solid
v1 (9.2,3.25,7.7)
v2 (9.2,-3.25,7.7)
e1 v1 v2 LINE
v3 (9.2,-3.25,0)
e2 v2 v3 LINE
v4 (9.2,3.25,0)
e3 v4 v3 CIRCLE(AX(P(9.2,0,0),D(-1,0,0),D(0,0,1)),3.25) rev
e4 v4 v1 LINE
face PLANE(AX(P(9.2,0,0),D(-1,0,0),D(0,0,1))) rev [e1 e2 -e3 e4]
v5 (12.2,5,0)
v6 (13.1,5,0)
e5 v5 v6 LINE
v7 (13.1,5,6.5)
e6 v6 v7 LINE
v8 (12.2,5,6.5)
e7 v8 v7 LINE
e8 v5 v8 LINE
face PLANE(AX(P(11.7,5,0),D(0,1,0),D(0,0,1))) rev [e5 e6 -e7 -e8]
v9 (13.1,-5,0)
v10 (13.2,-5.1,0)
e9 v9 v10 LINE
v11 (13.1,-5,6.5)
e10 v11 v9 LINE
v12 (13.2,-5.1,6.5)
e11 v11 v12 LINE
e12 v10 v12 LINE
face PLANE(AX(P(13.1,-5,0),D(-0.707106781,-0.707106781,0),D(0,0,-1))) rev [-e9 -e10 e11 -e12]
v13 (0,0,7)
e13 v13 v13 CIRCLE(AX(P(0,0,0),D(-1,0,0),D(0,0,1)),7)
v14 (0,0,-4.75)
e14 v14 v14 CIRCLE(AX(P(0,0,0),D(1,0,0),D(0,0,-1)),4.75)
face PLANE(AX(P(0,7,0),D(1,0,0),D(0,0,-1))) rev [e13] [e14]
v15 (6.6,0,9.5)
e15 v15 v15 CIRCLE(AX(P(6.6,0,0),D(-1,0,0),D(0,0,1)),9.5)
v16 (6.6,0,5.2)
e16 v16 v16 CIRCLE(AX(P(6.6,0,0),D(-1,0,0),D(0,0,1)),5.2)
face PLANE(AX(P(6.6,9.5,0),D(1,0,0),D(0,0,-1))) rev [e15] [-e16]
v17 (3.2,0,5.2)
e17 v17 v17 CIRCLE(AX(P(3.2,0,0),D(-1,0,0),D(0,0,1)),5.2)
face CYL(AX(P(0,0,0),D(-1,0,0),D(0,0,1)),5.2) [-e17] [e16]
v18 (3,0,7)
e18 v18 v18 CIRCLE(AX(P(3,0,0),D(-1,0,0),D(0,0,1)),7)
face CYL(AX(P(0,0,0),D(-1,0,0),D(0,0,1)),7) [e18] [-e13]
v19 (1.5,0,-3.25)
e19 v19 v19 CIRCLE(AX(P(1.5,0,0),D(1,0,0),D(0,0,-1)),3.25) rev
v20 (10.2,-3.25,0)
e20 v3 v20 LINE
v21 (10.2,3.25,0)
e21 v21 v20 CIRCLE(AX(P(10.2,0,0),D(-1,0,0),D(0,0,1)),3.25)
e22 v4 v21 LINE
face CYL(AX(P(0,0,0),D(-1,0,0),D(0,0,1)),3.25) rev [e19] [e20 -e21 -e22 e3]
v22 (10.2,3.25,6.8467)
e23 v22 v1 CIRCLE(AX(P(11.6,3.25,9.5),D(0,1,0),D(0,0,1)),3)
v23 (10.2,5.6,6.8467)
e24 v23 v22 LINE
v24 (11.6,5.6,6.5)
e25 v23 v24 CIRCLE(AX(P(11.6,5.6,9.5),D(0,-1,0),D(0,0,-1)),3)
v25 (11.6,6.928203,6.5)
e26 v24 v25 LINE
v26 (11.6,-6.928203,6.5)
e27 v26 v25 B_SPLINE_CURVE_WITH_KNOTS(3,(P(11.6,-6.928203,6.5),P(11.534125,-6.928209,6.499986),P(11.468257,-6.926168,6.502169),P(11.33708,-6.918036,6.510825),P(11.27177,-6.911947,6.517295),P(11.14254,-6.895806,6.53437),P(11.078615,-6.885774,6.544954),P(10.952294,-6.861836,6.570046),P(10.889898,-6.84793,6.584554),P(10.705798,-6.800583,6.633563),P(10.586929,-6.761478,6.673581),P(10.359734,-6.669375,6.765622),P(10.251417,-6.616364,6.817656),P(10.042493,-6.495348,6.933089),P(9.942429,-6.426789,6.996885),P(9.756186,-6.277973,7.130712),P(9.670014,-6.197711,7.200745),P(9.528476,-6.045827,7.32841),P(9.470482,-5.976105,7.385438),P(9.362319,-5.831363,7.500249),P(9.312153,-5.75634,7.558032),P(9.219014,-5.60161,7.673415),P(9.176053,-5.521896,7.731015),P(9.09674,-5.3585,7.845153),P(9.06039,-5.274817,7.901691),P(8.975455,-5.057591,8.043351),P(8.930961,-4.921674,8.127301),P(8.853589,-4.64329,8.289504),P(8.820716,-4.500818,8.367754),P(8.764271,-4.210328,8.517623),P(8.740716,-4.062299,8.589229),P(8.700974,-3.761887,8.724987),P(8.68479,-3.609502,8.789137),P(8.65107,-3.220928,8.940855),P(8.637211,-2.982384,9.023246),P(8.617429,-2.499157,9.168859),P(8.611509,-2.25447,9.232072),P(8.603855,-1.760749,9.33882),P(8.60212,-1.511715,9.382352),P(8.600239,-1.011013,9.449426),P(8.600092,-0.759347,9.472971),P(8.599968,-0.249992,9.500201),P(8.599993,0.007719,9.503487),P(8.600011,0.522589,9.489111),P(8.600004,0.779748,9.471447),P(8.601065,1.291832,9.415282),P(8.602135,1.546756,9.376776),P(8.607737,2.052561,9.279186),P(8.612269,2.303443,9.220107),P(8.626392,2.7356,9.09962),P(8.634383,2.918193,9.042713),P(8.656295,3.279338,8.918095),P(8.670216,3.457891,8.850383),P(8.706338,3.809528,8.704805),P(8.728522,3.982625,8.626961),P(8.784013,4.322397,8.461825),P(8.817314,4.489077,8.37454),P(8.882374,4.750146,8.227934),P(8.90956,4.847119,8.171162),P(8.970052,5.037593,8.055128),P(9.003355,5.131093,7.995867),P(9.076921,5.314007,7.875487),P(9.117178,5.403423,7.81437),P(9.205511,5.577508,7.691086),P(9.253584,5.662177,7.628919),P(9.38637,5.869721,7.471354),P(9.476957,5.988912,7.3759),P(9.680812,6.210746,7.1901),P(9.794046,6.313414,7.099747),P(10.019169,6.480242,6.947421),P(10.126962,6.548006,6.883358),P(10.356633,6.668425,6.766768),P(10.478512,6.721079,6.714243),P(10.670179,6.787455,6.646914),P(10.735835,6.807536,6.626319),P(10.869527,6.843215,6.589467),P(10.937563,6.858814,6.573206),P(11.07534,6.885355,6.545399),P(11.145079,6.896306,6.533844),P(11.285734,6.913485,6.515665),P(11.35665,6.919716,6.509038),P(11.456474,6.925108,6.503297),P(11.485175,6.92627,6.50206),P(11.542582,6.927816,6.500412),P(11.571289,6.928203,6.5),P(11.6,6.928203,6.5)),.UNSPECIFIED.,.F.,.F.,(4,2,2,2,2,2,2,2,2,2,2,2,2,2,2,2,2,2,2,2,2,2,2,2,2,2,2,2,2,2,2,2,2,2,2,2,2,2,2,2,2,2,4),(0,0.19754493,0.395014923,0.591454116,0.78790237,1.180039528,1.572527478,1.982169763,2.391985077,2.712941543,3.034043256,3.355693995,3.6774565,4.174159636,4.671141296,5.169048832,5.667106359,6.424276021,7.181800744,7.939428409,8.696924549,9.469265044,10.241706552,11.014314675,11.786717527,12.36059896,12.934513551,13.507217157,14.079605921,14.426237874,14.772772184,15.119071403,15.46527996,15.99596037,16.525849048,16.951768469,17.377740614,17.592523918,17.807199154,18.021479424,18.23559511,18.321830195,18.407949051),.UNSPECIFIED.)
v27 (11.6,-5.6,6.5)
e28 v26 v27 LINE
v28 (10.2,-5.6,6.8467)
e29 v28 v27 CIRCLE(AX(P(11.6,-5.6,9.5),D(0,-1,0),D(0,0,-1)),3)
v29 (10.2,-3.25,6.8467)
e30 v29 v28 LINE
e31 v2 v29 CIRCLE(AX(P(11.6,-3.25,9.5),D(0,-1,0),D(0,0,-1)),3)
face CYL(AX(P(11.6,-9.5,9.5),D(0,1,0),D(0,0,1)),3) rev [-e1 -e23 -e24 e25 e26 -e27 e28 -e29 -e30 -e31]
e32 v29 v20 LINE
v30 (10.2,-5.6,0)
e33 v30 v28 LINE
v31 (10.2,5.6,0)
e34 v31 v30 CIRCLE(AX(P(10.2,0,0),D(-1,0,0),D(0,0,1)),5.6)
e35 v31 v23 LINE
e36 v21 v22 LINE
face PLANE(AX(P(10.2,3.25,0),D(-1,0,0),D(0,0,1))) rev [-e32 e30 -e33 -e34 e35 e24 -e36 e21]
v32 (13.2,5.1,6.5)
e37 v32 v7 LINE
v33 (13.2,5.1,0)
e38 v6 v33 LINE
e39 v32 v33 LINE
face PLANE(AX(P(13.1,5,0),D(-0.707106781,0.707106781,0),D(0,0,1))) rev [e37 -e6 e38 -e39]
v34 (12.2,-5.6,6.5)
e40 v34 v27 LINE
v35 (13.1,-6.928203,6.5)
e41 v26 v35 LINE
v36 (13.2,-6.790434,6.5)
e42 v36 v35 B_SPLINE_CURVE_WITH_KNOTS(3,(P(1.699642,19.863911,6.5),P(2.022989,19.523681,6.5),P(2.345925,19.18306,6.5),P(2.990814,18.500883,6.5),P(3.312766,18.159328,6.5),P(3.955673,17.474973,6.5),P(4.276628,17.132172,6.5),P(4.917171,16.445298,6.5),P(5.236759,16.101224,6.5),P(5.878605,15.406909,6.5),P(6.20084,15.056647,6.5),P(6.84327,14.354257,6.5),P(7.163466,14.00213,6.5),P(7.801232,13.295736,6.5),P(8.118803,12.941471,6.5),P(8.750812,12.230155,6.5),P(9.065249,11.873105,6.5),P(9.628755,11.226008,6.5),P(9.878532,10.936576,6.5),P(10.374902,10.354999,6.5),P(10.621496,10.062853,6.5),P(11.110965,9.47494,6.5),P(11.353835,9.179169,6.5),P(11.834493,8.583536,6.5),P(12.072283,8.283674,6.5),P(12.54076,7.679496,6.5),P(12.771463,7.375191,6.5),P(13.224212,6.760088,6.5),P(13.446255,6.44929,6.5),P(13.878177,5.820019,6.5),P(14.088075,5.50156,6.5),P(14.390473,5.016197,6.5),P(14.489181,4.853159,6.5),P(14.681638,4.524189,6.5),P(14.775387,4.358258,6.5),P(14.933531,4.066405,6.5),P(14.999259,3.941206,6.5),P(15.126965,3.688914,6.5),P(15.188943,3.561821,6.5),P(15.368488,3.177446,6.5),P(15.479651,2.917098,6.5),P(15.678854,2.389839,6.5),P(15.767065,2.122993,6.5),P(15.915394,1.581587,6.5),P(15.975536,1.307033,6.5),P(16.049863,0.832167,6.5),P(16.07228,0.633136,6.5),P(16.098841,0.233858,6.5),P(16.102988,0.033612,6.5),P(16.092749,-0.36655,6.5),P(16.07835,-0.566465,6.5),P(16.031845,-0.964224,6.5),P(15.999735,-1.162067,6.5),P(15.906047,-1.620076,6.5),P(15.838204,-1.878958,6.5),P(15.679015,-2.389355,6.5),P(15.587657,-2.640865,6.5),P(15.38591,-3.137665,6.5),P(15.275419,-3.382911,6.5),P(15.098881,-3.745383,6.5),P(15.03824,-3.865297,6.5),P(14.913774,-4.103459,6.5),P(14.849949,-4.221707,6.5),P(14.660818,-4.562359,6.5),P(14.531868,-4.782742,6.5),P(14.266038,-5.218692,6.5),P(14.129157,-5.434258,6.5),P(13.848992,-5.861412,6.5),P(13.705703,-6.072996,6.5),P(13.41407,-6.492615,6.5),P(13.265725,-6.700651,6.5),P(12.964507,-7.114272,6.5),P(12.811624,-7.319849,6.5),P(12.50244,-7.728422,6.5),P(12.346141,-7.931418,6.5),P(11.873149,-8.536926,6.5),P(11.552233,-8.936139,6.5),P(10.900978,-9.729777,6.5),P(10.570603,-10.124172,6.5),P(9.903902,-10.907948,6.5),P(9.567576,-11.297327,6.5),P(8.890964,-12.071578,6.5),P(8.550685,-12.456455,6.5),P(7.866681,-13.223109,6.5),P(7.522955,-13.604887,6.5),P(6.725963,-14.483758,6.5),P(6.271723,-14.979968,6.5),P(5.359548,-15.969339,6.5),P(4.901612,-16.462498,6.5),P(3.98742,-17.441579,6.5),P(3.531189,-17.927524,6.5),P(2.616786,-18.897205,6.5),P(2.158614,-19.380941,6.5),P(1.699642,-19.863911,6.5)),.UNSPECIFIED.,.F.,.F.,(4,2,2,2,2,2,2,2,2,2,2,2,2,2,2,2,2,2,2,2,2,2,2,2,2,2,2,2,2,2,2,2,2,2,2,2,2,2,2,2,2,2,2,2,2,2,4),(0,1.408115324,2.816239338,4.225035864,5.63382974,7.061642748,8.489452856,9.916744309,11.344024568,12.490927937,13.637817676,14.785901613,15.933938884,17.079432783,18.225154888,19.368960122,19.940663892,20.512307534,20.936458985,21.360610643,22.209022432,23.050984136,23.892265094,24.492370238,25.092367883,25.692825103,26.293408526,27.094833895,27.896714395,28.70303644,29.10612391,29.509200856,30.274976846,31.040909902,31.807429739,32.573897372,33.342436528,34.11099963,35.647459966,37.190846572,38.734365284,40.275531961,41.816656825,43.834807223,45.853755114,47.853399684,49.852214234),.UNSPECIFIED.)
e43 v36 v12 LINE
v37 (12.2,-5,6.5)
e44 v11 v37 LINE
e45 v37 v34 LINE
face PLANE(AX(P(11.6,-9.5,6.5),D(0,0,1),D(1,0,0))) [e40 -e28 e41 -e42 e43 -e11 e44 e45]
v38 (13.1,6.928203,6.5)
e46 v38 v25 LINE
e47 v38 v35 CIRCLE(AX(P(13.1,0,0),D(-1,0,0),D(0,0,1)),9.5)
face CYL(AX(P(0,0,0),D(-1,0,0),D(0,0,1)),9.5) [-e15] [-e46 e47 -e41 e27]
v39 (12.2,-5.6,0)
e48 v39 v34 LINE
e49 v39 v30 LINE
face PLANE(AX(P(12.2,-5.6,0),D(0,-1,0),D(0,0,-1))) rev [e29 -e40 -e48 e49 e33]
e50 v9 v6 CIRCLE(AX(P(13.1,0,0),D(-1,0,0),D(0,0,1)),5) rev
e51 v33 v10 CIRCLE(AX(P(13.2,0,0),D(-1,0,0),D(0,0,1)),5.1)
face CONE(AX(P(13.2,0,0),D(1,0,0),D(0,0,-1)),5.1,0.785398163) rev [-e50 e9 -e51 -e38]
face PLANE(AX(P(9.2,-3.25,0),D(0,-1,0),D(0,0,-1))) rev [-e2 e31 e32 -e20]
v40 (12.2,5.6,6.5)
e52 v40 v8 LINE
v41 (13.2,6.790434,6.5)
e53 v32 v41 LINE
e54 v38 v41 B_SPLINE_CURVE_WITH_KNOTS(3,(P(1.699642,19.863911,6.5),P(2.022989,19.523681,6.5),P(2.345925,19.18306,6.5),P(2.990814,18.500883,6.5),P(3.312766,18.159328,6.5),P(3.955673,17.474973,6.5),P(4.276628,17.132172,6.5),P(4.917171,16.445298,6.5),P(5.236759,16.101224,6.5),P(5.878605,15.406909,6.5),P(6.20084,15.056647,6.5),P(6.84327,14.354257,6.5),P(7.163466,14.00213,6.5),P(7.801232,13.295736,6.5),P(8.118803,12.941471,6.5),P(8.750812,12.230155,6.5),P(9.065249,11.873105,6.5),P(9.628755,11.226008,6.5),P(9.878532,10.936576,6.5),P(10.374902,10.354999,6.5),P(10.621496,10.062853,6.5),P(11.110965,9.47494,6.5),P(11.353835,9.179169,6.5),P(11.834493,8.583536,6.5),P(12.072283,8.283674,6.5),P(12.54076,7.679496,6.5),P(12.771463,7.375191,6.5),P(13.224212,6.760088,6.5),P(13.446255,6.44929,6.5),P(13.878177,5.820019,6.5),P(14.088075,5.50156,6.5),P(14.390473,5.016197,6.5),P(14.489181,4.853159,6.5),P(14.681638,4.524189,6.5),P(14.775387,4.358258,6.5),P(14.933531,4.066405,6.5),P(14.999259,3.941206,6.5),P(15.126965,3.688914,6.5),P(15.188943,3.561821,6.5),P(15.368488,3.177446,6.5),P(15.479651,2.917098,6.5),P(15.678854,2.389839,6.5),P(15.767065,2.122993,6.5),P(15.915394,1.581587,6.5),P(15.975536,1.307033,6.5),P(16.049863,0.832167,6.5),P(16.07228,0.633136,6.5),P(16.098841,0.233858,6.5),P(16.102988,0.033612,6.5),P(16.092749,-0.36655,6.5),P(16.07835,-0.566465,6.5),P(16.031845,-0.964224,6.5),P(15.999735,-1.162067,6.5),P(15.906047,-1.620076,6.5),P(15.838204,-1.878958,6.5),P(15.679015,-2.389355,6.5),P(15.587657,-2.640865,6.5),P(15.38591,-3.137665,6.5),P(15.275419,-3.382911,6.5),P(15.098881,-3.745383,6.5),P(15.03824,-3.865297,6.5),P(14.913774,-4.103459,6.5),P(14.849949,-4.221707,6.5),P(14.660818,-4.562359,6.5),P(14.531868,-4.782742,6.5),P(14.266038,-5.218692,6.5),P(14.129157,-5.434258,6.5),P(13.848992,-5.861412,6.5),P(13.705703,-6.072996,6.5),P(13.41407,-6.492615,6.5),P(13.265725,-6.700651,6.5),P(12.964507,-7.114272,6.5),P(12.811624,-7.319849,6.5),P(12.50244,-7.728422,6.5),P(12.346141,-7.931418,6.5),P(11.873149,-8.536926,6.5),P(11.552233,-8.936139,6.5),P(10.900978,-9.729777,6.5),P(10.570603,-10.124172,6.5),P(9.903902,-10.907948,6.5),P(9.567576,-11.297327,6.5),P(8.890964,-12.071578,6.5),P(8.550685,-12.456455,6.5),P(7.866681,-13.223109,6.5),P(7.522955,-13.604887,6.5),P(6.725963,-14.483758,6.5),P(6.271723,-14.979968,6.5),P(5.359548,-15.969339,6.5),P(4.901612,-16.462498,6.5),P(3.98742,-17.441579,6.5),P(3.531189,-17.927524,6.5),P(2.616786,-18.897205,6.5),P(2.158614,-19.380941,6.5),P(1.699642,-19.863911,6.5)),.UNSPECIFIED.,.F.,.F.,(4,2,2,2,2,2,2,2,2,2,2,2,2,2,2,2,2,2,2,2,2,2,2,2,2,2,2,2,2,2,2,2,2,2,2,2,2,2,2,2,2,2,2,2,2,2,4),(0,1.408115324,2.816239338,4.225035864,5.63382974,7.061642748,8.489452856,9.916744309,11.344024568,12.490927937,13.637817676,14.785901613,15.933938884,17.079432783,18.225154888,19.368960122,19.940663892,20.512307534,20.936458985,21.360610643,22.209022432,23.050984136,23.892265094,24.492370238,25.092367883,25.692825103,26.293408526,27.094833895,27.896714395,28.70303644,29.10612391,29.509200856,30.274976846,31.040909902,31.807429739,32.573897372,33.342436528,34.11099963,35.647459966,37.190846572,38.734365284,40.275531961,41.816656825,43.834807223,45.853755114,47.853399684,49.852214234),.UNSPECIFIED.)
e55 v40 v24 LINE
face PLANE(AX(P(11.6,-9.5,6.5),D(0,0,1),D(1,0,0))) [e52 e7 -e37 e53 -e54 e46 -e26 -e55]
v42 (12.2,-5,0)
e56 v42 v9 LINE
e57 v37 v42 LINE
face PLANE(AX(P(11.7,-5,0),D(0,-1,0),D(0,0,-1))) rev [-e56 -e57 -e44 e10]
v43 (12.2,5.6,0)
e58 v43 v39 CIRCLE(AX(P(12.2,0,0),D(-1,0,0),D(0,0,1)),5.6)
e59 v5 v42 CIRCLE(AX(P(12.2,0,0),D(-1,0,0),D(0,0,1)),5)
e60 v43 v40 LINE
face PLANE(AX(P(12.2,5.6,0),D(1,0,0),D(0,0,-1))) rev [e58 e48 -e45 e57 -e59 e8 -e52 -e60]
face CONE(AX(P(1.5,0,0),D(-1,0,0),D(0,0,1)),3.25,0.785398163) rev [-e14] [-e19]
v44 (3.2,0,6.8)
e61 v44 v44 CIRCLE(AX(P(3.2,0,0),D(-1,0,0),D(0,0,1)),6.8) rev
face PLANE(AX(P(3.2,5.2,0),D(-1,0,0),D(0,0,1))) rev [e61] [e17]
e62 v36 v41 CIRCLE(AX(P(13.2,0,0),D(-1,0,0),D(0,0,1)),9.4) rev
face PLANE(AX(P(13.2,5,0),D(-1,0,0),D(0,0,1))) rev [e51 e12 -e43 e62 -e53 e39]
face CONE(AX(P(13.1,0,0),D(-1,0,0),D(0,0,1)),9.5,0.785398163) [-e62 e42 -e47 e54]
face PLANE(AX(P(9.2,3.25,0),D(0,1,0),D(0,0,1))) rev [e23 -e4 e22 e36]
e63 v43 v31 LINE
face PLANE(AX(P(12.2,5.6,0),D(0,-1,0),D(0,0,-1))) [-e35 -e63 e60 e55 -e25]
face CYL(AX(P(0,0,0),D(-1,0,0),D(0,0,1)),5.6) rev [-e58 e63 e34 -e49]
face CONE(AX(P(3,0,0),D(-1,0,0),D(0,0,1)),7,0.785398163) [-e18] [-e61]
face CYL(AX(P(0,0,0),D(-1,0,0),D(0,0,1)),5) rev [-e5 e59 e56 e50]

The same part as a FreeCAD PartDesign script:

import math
import FreeCAD as App
import Part
import Sketcher

V = App.Vector
Q = App.Units.Quantity


def edges_at(feature, points):
    """Names of the edges that pass closest to the given points."""
    edges = feature.Shape.Edges
    near = lambda p: min(range(len(edges)), key=lambda i: edges[i].distToShape(Part.Vertex(*p))[0])
    return sorted({f"Edge{near(p) + 1}" for p in points})

doc = App.newDocument("Part")
body = doc.addObject("PartDesign::Body", "Body")

sketch1 = body.newObject("Sketcher::SketchObject", "Sketch")
sketch1.AttachmentSupport = (doc.getObject("XY_Plane"), [""])
sketch1.MapMode = "FlatFace"
sketch1.addGeometry([
    Part.LineSegment(V(0, 3.2, 0), V(10.2, 3.2, 0)),
    Part.LineSegment(V(10.2, 3.2, 0), V(10.2, 5.6, 0)),
    Part.LineSegment(V(10.2, 5.6, 0), V(12.2, 5.6, 0)),
    Part.LineSegment(V(12.2, 5.6, 0), V(12.2, 5, 0)),
    Part.LineSegment(V(12.2, 5, 0), V(13.2, 5, 0)),
    Part.LineSegment(V(13.2, 5, 0), V(13.2, 9.5, 0)),
    Part.LineSegment(V(13.2, 9.5, 0), V(6.6, 9.5, 0)),
    Part.LineSegment(V(6.6, 9.5, 0), V(6.6, 5.2, 0)),
    Part.LineSegment(V(6.6, 5.2, 0), V(3.2, 5.2, 0)),
    Part.LineSegment(V(3.2, 5.2, 0), V(3.2, 7, 0)),
    Part.LineSegment(V(3.2, 7, 0), V(0, 7, 0)),
    Part.LineSegment(V(0, 7, 0), V(0, 3.2, 0)),
], False)
sketch1.addConstraint([
    Sketcher.Constraint("Coincident", 0, 2, 1, 1),
    Sketcher.Constraint("Coincident", 1, 2, 2, 1),
    Sketcher.Constraint("Coincident", 2, 2, 3, 1),
    Sketcher.Constraint("Coincident", 3, 2, 4, 1),
    Sketcher.Constraint("Coincident", 4, 2, 5, 1),
    Sketcher.Constraint("Coincident", 5, 2, 6, 1),
    Sketcher.Constraint("Coincident", 6, 2, 7, 1),
    Sketcher.Constraint("Coincident", 7, 2, 8, 1),
    Sketcher.Constraint("Coincident", 8, 2, 9, 1),
    Sketcher.Constraint("Coincident", 9, 2, 10, 1),
    Sketcher.Constraint("Coincident", 10, 2, 11, 1),
    Sketcher.Constraint("Coincident", 11, 2, 0, 1),
    Sketcher.Constraint("Horizontal", 0),
    Sketcher.Constraint("Vertical", 1),
    Sketcher.Constraint("Horizontal", 2),
    Sketcher.Constraint("Vertical", 3),
    Sketcher.Constraint("Horizontal", 4),
    Sketcher.Constraint("Vertical", 5),
    Sketcher.Constraint("Horizontal", 6),
    Sketcher.Constraint("Vertical", 7),
    Sketcher.Constraint("Horizontal", 8),
    Sketcher.Constraint("Vertical", 9),
    Sketcher.Constraint("Horizontal", 10),
    Sketcher.Constraint("Vertical", 11),
    Sketcher.Constraint("PointOnObject", 10, 2, -2),
    Sketcher.Constraint("DistanceX", 2, 1, 2, 2, Q("2 mm")),
    Sketcher.Constraint("DistanceX", 4, 1, 4, 2, Q("1 mm")),
    Sketcher.Constraint("DistanceX", 0, 1, 0, 2, Q("10.2 mm")),
    Sketcher.Constraint("DistanceX", 6, 2, 6, 1, Q("6.6 mm")),
    Sketcher.Constraint("DistanceX", 8, 2, 8, 1, Q("3.4 mm")),
    Sketcher.Constraint("DistanceY", 3, 2, 3, 1, Q("0.6 mm")),
    Sketcher.Constraint("DistanceY", 5, 1, 5, 2, Q("4.5 mm")),
    Sketcher.Constraint("DistanceY", 7, 2, 7, 1, Q("4.3 mm")),
    Sketcher.Constraint("DistanceY", 9, 1, 9, 2, Q("1.8 mm")),
    Sketcher.Constraint("DistanceY", -1, 1, 3, 2, Q("5 mm")),
    Sketcher.Constraint("DistanceY", 1, 1, 1, 2, Q("2.35 mm")),
])
revolution = body.newObject("PartDesign::Revolution", "Revolution")
revolution.Profile = sketch1
revolution.ReferenceAxis = (sketch1, ["H_Axis"])
revolution.Angle = 360

sketch2 = body.newObject("Sketcher::SketchObject", "Sketch001")
sketch2.AttachmentSupport = (doc.getObject("YZ_Plane"), [""])
sketch2.MapMode = "FlatFace"
sketch2.AttachmentOffset = App.Placement(V(0, 0, 13.2), App.Rotation())
sketch2.addGeometry([
    Part.LineSegment(V(5, 10, 0), V(-5, 10, 0)),
    Part.LineSegment(V(-5, 10, 0), V(-5, 0, 0)),
    Part.LineSegment(V(-5, 0, 0), V(5, 0, 0)),
    Part.LineSegment(V(5, 0, 0), V(5, 10, 0)),
], False)
sketch2.addConstraint([
    Sketcher.Constraint("Coincident", 0, 2, 1, 1),
    Sketcher.Constraint("Coincident", 1, 2, 2, 1),
    Sketcher.Constraint("Coincident", 2, 2, 3, 1),
    Sketcher.Constraint("Coincident", 3, 2, 0, 1),
    Sketcher.Constraint("Horizontal", 0),
    Sketcher.Constraint("Vertical", 1),
    Sketcher.Constraint("Horizontal", 2),
    Sketcher.Constraint("Vertical", 3),
    Sketcher.Constraint("Symmetric", 1, 2, 2, 2, -1, 1),
    Sketcher.Constraint("DistanceX", 0, 2, 0, 1, Q("10 mm")),
    Sketcher.Constraint("DistanceY", 1, 2, 1, 1, Q("9.579663 mm")),
])
pocket1 = body.newObject("PartDesign::Pocket", "Pocket")
pocket1.Profile = sketch2
pocket1.Length = 1.5

sketch3 = body.newObject("Sketcher::SketchObject", "Sketch002")
sketch3.AttachmentSupport = (doc.getObject("YZ_Plane"), [""])
sketch3.MapMode = "FlatFace"
sketch3.AttachmentOffset = App.Placement(V(0, 0, 12.2), App.Rotation())
sketch3.addGeometry([
    Part.LineSegment(V(-6, 10, 0), V(-6, 0, 0)),
    Part.ArcOfCircle(Part.Circle(V(0, 0, 0), V(0, 0, 1), 6), math.radians(0), math.radians(180)),
    Part.LineSegment(V(6, 0, 0), V(6, 10, 0)),
    Part.LineSegment(V(6, 10, 0), V(-6, 10, 0)),
], False)
sketch3.addConstraint([
    Sketcher.Constraint("Tangent", 0, 2, 1, 2),
    Sketcher.Constraint("Tangent", 1, 1, 2, 1),
    Sketcher.Constraint("Coincident", 2, 2, 3, 1),
    Sketcher.Constraint("Coincident", 3, 2, 0, 1),
    Sketcher.Constraint("Vertical", 0),
    Sketcher.Constraint("Vertical", 2),
    Sketcher.Constraint("Horizontal", 3),
    Sketcher.Constraint("Coincident", 1, 3, -1, 1),
    Sketcher.Constraint("Radius", 1, Q("5.6 mm")),
    Sketcher.Constraint("DistanceY", 0, 2, 0, 1, Q("9.610817 mm")),
])
pocket2 = body.newObject("PartDesign::Pocket", "Pocket001")
pocket2.Profile = sketch3
pocket2.Length = 2

sketch4 = body.newObject("Sketcher::SketchObject", "Sketch003")
sketch4.AttachmentSupport = (doc.getObject("YZ_Plane"), [""])
sketch4.MapMode = "FlatFace"
sketch4.AttachmentOffset = App.Placement(V(0, 0, 10.2), App.Rotation())
sketch4.addGeometry([
    Part.LineSegment(V(3, 10, 0), V(-3, 10, 0)),
    Part.LineSegment(V(-3, 10, 0), V(-3, 0, 0)),
    Part.LineSegment(V(-3, 0, 0), V(3, 0, 0)),
    Part.LineSegment(V(3, 0, 0), V(3, 10, 0)),
], False)
sketch4.addConstraint([
    Sketcher.Constraint("Coincident", 0, 2, 1, 1),
    Sketcher.Constraint("Coincident", 1, 2, 2, 1),
    Sketcher.Constraint("Coincident", 2, 2, 3, 1),
    Sketcher.Constraint("Coincident", 3, 2, 0, 1),
    Sketcher.Constraint("Horizontal", 0),
    Sketcher.Constraint("Vertical", 1),
    Sketcher.Constraint("Horizontal", 2),
    Sketcher.Constraint("Vertical", 3),
    Sketcher.Constraint("Symmetric", 1, 2, 2, 2, -1, 1),
    Sketcher.Constraint("DistanceX", 0, 2, 0, 1, Q("6.5 mm")),
    Sketcher.Constraint("DistanceY", 1, 2, 1, 1, Q("9.704277 mm")),
])
pocket3 = body.newObject("PartDesign::Pocket", "Pocket002")
pocket3.Profile = sketch4
pocket3.Length = 1
doc.recompute()

chamfer = body.newObject("PartDesign::Chamfer", "Chamfer")
chamfer.Base = (pocket3, edges_at(pocket3, [(3.2, 0, -7)]))
chamfer.Size = 0.2
doc.recompute()

chamfer2 = body.newObject("PartDesign::Chamfer", "Chamfer001")
chamfer2.Base = (chamfer, edges_at(chamfer, [(13.2, 0, -9.5)]))
chamfer2.Size = 0.1
doc.recompute()

chamfer3 = body.newObject("PartDesign::Chamfer", "Chamfer002")
chamfer3.Base = (chamfer2, edges_at(chamfer2, [(13.2, 5, 3.98), (13.2, -5, 3.98), (13.2, 0, -5)]))
chamfer3.Size = 0.1
doc.recompute()

chamfer4 = body.newObject("PartDesign::Chamfer", "Chamfer003")
chamfer4.Base = (chamfer3, edges_at(chamfer3, [(0, 0, -3.25)]))
chamfer4.Size = 1.5

sketch5 = body.newObject("Sketcher::SketchObject", "Sketch004")
sketch5.AttachmentSupport = (doc.getObject("XZ_Plane"), [""])
sketch5.MapMode = "FlatFace"
sketch5.addGeometry([
    Part.LineSegment(V(13.2, 6.5, 0), V(11.6, 6.5, 0)),
    Part.ArcOfCircle(Part.Circle(V(11.6, 9.5, 0), V(0, 0, 1), 3), math.radians(90), math.radians(270)),
    Part.LineSegment(V(11.6, 12.5, 0), V(13.2, 12.5, 0)),
    Part.LineSegment(V(13.2, 12.5, 0), V(13.2, 6.5, 0)),
], False)
sketch5.addConstraint([
    Sketcher.Constraint("Tangent", 0, 2, 1, 2),
    Sketcher.Constraint("Tangent", 1, 1, 2, 1),
    Sketcher.Constraint("Coincident", 2, 2, 3, 1),
    Sketcher.Constraint("Coincident", 3, 2, 0, 1),
    Sketcher.Constraint("Horizontal", 0),
    Sketcher.Constraint("Horizontal", 2),
    Sketcher.Constraint("Vertical", 3),
    Sketcher.Constraint("Radius", 1, Q("3 mm")),
    Sketcher.Constraint("DistanceX", 0, 2, 0, 1, Q("1.6 mm")),
    Sketcher.Constraint("DistanceX", -1, 1, 1, 3, Q("11.6 mm")),
    Sketcher.Constraint("DistanceY", -1, 1, 1, 3, Q("9.5 mm")),
])
pocket4 = body.newObject("PartDesign::Pocket", "Pocket003")
pocket4.Profile = sketch5
pocket4.Type = "ThroughAll"
pocket4.Midplane = True

doc.recompute()
